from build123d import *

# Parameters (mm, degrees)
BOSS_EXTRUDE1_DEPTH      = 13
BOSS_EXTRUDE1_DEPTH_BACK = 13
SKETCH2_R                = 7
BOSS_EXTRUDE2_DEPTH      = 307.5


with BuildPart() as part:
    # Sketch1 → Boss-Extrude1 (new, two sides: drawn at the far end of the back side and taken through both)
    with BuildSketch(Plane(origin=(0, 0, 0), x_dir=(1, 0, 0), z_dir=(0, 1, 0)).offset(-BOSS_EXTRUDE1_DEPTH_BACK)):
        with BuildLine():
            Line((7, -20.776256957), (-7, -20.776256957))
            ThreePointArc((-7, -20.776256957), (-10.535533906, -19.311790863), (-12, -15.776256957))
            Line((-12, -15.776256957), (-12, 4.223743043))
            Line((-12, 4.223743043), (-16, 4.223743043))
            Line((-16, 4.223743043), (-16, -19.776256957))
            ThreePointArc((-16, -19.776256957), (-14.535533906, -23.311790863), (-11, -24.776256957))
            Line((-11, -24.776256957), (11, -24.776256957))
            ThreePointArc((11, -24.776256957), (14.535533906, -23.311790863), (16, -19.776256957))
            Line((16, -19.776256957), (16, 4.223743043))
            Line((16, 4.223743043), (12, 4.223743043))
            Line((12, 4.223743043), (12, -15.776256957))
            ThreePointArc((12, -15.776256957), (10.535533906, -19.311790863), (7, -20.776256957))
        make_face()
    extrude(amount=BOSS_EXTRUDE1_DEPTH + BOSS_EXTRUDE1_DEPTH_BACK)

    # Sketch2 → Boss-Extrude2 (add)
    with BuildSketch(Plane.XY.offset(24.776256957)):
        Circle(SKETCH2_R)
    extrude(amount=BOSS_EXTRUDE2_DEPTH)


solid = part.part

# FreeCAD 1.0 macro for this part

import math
import FreeCAD as App
import Part
import Sketcher

V = App.Vector
Q = App.Units.Quantity

doc = App.newDocument("Part")
body = doc.addObject("PartDesign::Body", "Body")

# Sketch on XZ plane
sketch1 = doc.addObject("Sketcher::SketchObject", "Sketch")
body.addObject(sketch1)
sketch1.AttachmentSupport = (doc.XZ_Plane, [""])
sketch1.MapMode = "FlatFace"
sketch1.addGeometry(Part.LineSegment(V(7, 20.8, 0), V(-7, 20.8, 0)), False)
sketch1.addGeometry(Part.ArcOfCircle(Part.Circle(V(-7, 15.8, 0), V(0, 0, 1), 5), math.radians(90), math.radians(180)), False)
sketch1.addGeometry(Part.LineSegment(V(-12, 15.8, 0), V(-12, -4.2, 0)), False)
sketch1.addGeometry(Part.LineSegment(V(-12, -4.2, 0), V(-16, -4.2, 0)), False)
sketch1.addGeometry(Part.LineSegment(V(-16, -4.2, 0), V(-16, 19.8, 0)), False)
sketch1.addGeometry(Part.ArcOfCircle(Part.Circle(V(-11, 19.8, 0), V(0, 0, 1), 5), math.radians(90), math.radians(180)), False)
sketch1.addGeometry(Part.LineSegment(V(-11, 24.8, 0), V(11, 24.8, 0)), False)
sketch1.addGeometry(Part.ArcOfCircle(Part.Circle(V(11, 19.8, 0), V(0, 0, 1), 5), math.radians(0), math.radians(90)), False)
sketch1.addGeometry(Part.LineSegment(V(16, 19.8, 0), V(16, -4.2, 0)), False)
sketch1.addGeometry(Part.LineSegment(V(16, -4.2, 0), V(12, -4.2, 0)), False)
sketch1.addGeometry(Part.LineSegment(V(12, -4.2, 0), V(12, 15.8, 0)), False)
sketch1.addGeometry(Part.ArcOfCircle(Part.Circle(V(7, 15.8, 0), V(0, 0, 1), 5), math.radians(0), math.radians(90)), False)
sketch1.addConstraint(Sketcher.Constraint("Tangent", 0, 2, 1, 1))
sketch1.addConstraint(Sketcher.Constraint("Tangent", 1, 2, 2, 1))
sketch1.addConstraint(Sketcher.Constraint("Coincident", 2, 2, 3, 1))
sketch1.addConstraint(Sketcher.Constraint("Coincident", 3, 2, 4, 1))
sketch1.addConstraint(Sketcher.Constraint("Tangent", 4, 2, 5, 2))
sketch1.addConstraint(Sketcher.Constraint("Tangent", 5, 1, 6, 1))
sketch1.addConstraint(Sketcher.Constraint("Tangent", 6, 2, 7, 2))
sketch1.addConstraint(Sketcher.Constraint("Tangent", 7, 1, 8, 1))
sketch1.addConstraint(Sketcher.Constraint("Coincident", 8, 2, 9, 1))
sketch1.addConstraint(Sketcher.Constraint("Coincident", 9, 2, 10, 1))
sketch1.addConstraint(Sketcher.Constraint("Tangent", 10, 2, 11, 1))
sketch1.addConstraint(Sketcher.Constraint("Tangent", 11, 2, 0, 1))
sketch1.addConstraint(Sketcher.Constraint("Horizontal", 0))
sketch1.addConstraint(Sketcher.Constraint("Vertical", 2))
sketch1.addConstraint(Sketcher.Constraint("Horizontal", 3))
sketch1.addConstraint(Sketcher.Constraint("Vertical", 4))
sketch1.addConstraint(Sketcher.Constraint("Horizontal", 6))
sketch1.addConstraint(Sketcher.Constraint("Vertical", 8))
sketch1.addConstraint(Sketcher.Constraint("Horizontal", 9))
sketch1.addConstraint(Sketcher.Constraint("Vertical", 10))
sketch1.addConstraint(Sketcher.Constraint("Equal", 1, 5))
sketch1.addConstraint(Sketcher.Constraint("Equal", 5, 7))
sketch1.addConstraint(Sketcher.Constraint("Equal", 7, 11))
sketch1.addConstraint(Sketcher.Constraint("Symmetric", 3, 2, 8, 2, -2))
sketch1.addConstraint(Sketcher.Constraint("Equal", 3, 9))
sketch1.addConstraint(Sketcher.Constraint("Radius", 1, Q("5 mm")))
sketch1.addConstraint(Sketcher.Constraint("DistanceX", 0, 2, 0, 1, Q("14 mm")))
sketch1.addConstraint(Sketcher.Constraint("DistanceX", 3, 2, 3, 1, Q("4 mm")))
sketch1.addConstraint(Sketcher.Constraint("DistanceY", 2, 2, 2, 1, Q("20 mm")))
sketch1.addConstraint(Sketcher.Constraint("DistanceY", 4, 1, 4, 2, Q("24 mm")))
sketch1.addConstraint(Sketcher.Constraint("DistanceY", -1, 1, 1, 3, Q("15.776257 mm")))
pad1 = doc.addObject("PartDesign::Pad", "Pad")
body.addObject(pad1)
pad1.Profile = sketch1
pad1.Type = "TwoLengths"
pad1.Length = 13
pad1.Length2 = 13
pad1.Reversed = True

# Sketch on XY plane
sketch2 = doc.addObject("Sketcher::SketchObject", "Sketch001")
body.addObject(sketch2)
sketch2.AttachmentSupport = (doc.XY_Plane, [""])
sketch2.MapMode = "FlatFace"
sketch2.AttachmentOffset = App.Placement(V(0, 0, 24.776257), App.Rotation())
sketch2.addGeometry(Part.Circle(V(0, 0, 0), V(0, 0, 1), 7), False)
sketch2.addConstraint(Sketcher.Constraint("Coincident", 0, 3, -1, 1))
sketch2.addConstraint(Sketcher.Constraint("Diameter", 0, Q("14 mm")))
pad2 = doc.addObject("PartDesign::Pad", "Pad001")
body.addObject(pad2)
pad2.Profile = sketch2
pad2.Length = 307.5

doc.recompute()
